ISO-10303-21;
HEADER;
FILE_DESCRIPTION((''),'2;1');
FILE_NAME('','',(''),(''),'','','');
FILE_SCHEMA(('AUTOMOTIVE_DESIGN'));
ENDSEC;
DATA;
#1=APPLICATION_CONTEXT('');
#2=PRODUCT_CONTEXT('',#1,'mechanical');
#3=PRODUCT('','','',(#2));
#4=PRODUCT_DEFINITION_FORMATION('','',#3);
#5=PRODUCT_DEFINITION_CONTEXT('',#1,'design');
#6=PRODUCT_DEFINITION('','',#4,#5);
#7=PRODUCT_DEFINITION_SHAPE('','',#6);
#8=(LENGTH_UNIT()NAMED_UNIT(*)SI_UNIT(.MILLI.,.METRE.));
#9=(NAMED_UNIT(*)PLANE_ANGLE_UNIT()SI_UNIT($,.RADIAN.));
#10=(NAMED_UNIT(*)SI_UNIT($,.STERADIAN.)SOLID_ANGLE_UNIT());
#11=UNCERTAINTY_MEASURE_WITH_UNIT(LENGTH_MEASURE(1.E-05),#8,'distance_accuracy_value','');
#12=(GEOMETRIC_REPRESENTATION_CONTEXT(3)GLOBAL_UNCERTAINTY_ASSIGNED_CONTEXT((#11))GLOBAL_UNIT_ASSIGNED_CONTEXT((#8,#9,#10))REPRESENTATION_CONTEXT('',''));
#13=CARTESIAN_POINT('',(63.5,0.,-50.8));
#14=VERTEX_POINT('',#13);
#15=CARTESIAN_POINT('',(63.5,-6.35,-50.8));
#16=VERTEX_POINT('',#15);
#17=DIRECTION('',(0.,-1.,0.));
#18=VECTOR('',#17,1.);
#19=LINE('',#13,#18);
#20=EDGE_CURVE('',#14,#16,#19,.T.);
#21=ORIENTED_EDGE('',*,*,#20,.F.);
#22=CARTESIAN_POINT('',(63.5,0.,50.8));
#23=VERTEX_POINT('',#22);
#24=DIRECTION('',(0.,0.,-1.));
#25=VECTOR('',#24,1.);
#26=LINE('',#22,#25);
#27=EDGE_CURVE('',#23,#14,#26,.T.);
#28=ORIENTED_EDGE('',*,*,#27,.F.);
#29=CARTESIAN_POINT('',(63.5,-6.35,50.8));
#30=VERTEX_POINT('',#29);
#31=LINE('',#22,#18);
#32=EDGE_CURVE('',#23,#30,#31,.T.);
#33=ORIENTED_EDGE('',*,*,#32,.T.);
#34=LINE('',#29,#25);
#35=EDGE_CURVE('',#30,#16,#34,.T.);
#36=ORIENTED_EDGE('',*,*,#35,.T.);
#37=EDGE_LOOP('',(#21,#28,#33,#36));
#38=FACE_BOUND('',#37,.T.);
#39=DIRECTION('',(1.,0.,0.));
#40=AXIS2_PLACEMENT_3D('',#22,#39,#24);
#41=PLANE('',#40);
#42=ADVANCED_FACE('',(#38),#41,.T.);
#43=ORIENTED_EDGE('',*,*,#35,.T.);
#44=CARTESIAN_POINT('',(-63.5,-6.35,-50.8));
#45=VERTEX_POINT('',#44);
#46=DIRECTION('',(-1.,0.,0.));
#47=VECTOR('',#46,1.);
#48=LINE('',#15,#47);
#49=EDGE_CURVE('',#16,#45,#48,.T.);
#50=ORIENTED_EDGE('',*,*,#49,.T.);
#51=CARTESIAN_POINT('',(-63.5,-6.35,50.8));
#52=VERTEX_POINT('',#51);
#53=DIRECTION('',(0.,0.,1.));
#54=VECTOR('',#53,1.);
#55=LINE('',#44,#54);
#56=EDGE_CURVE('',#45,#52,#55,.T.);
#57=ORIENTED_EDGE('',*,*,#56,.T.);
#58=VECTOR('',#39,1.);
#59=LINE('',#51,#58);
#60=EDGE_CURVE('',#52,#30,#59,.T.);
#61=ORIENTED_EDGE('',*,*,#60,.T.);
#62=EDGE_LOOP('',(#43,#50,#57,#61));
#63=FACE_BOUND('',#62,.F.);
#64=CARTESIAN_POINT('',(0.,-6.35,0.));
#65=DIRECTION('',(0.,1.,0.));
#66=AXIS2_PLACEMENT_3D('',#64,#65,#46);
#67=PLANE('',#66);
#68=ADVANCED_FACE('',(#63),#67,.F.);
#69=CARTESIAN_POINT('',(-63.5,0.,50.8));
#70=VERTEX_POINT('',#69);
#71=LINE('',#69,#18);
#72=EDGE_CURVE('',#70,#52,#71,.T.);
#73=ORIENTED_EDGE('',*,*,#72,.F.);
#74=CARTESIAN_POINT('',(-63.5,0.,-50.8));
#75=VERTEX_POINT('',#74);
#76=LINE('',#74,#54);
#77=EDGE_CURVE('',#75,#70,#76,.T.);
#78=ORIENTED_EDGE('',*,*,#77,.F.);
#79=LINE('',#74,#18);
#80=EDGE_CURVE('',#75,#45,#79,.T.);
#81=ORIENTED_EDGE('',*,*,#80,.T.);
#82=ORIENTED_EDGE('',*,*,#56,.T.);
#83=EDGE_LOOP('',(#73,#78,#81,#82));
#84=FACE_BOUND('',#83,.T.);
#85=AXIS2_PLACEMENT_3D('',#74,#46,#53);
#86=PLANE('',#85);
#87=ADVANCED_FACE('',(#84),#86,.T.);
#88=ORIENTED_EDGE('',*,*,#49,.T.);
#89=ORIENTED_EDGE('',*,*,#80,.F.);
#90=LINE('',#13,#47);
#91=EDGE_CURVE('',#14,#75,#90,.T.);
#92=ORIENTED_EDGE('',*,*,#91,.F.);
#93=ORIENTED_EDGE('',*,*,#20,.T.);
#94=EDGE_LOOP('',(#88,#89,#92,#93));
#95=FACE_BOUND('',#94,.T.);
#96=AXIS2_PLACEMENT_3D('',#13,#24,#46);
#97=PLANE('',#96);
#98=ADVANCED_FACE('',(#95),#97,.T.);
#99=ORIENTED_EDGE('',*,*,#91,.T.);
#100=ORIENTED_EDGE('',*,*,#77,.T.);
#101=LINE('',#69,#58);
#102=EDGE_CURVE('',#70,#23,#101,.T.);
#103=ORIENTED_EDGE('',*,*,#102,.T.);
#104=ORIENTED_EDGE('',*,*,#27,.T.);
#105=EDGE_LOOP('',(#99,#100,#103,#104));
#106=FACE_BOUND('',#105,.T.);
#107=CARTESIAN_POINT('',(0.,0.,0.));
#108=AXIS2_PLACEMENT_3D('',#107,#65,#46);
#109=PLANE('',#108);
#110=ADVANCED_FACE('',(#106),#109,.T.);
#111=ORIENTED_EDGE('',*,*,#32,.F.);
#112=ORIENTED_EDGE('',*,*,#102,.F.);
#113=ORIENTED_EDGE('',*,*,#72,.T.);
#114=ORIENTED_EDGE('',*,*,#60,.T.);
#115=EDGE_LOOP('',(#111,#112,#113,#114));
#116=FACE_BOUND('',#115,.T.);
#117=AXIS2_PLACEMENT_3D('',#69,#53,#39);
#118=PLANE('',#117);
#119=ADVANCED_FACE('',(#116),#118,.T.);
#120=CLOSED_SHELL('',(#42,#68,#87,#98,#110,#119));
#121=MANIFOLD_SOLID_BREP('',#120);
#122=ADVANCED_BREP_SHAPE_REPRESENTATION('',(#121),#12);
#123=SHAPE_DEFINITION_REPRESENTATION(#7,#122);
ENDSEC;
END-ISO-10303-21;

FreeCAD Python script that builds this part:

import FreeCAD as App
import Part
import Sketcher
from FreeCAD import Vector
Q = App.Units.Quantity


def add_polygon(sketch, points):
    """Adds a closed chain of lines whose ends are joined by coincident constraints."""
    first, n = sketch.GeometryCount, len(points)
    for a, b in zip(points, points[1:] + points[:1]):
        sketch.addGeometry(Part.LineSegment(App.Vector(*a, 0), App.Vector(*b, 0)), False)
    for i in range(n):
        sketch.addConstraint(Sketcher.Constraint("Coincident", first + i, 2, first + (i + 1) % n, 1))

doc = App.newDocument("Part")
body = doc.addObject("PartDesign::Body", "Body")

sketch1 = body.newObject("Sketcher::SketchObject", "Sketch")
sketch1.AttachmentSupport = (doc.getObject("XZ_Plane"), [""])
sketch1.MapMode = "FlatFace"
add_polygon(sketch1, [(-64, -51), (-64, 51), (64, 51), (64, -51)])
sketch1.addConstraint(Sketcher.Constraint("Vertical", 0))
sketch1.addConstraint(Sketcher.Constraint("Horizontal", 1))
sketch1.addConstraint(Sketcher.Constraint("Vertical", 2))
sketch1.addConstraint(Sketcher.Constraint("Horizontal", 3))
sketch1.addConstraint(Sketcher.Constraint("Symmetric", 0, 2, 2, 2, -1, 1))
sketch1.addConstraint(Sketcher.Constraint("DistanceX", 1, 1, 1, 2, Q("5 in")))
sketch1.addConstraint(Sketcher.Constraint("DistanceY", 0, 1, 0, 2, Q("4 in")))
pad1 = body.newObject("PartDesign::Pad", "Pad")
pad1.Profile = sketch1
pad1.Length = Q("0.25 in")

doc.recompute()
